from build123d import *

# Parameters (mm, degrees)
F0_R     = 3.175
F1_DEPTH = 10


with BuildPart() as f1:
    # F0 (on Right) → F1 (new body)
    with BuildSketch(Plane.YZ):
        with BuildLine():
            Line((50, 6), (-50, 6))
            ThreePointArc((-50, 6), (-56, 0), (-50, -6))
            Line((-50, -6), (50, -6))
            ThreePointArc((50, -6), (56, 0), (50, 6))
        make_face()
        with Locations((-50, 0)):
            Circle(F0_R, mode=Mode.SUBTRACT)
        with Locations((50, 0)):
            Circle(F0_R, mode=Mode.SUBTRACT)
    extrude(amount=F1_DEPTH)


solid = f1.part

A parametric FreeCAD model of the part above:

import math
import FreeCAD as App
import Part
import Sketcher
from FreeCAD import Vector
Q = App.Units.Quantity

doc = App.newDocument("Part")
body = doc.addObject("PartDesign::Body", "Body")

# Sketch on YZ plane
sketch1 = body.newObject("Sketcher::SketchObject", "Sketch")
sketch1.AttachmentSupport = (doc.getObject("YZ_Plane"), [""])
sketch1.MapMode = "FlatFace"
sketch1.addGeometry(Part.LineSegment(Vector(50, 6, 0), Vector(-50, 6, 0)), False)
sketch1.addGeometry(Part.ArcOfCircle(Part.Circle(Vector(-50, 0, 0), Vector(0, 0, 1), 6), math.radians(90), math.radians(270)), False)
sketch1.addGeometry(Part.LineSegment(Vector(-50, -6, 0), Vector(50, -6, 0)), False)
sketch1.addGeometry(Part.ArcOfCircle(Part.Circle(Vector(50, 0, 0), Vector(0, 0, 1), 6), math.radians(-90), math.radians(90)), False)
sketch1.addGeometry(Part.Circle(Vector(-50, 0, 0), Vector(0, 0, 1), 3.175), False)
sketch1.addGeometry(Part.Circle(Vector(50, 0, 0), Vector(0, 0, 1), 3.175), False)
sketch1.addConstraint(Sketcher.Constraint("Tangent", 0, 2, 1, 1))
sketch1.addConstraint(Sketcher.Constraint("Tangent", 1, 2, 2, 1))
sketch1.addConstraint(Sketcher.Constraint("Tangent", 2, 2, 3, 1))
sketch1.addConstraint(Sketcher.Constraint("Tangent", 3, 2, 0, 1))
sketch1.addConstraint(Sketcher.Constraint("Horizontal", 0))
sketch1.addConstraint(Sketcher.Constraint("Horizontal", 2))
sketch1.addConstraint(Sketcher.Constraint("Coincident", 4, 3, 1, 3))
sketch1.addConstraint(Sketcher.Constraint("Coincident", 5, 3, 3, 3))
sketch1.addConstraint(Sketcher.Constraint("Equal", 4, 5))
sketch1.addConstraint(Sketcher.Constraint("Symmetric", 1, 3, 3, 3, -1, 1))
sketch1.addConstraint(Sketcher.Constraint("Radius", 1, Q("6 mm")))
sketch1.addConstraint(Sketcher.Constraint("Diameter", 4, Q("6.35 mm")))
sketch1.addConstraint(Sketcher.Constraint("DistanceX", 0, 2, 0, 1, Q("100 mm")))
pad1 = body.newObject("PartDesign::Pad", "Pad")
pad1.Profile = sketch1
pad1.Length = 10

doc.recompute()
